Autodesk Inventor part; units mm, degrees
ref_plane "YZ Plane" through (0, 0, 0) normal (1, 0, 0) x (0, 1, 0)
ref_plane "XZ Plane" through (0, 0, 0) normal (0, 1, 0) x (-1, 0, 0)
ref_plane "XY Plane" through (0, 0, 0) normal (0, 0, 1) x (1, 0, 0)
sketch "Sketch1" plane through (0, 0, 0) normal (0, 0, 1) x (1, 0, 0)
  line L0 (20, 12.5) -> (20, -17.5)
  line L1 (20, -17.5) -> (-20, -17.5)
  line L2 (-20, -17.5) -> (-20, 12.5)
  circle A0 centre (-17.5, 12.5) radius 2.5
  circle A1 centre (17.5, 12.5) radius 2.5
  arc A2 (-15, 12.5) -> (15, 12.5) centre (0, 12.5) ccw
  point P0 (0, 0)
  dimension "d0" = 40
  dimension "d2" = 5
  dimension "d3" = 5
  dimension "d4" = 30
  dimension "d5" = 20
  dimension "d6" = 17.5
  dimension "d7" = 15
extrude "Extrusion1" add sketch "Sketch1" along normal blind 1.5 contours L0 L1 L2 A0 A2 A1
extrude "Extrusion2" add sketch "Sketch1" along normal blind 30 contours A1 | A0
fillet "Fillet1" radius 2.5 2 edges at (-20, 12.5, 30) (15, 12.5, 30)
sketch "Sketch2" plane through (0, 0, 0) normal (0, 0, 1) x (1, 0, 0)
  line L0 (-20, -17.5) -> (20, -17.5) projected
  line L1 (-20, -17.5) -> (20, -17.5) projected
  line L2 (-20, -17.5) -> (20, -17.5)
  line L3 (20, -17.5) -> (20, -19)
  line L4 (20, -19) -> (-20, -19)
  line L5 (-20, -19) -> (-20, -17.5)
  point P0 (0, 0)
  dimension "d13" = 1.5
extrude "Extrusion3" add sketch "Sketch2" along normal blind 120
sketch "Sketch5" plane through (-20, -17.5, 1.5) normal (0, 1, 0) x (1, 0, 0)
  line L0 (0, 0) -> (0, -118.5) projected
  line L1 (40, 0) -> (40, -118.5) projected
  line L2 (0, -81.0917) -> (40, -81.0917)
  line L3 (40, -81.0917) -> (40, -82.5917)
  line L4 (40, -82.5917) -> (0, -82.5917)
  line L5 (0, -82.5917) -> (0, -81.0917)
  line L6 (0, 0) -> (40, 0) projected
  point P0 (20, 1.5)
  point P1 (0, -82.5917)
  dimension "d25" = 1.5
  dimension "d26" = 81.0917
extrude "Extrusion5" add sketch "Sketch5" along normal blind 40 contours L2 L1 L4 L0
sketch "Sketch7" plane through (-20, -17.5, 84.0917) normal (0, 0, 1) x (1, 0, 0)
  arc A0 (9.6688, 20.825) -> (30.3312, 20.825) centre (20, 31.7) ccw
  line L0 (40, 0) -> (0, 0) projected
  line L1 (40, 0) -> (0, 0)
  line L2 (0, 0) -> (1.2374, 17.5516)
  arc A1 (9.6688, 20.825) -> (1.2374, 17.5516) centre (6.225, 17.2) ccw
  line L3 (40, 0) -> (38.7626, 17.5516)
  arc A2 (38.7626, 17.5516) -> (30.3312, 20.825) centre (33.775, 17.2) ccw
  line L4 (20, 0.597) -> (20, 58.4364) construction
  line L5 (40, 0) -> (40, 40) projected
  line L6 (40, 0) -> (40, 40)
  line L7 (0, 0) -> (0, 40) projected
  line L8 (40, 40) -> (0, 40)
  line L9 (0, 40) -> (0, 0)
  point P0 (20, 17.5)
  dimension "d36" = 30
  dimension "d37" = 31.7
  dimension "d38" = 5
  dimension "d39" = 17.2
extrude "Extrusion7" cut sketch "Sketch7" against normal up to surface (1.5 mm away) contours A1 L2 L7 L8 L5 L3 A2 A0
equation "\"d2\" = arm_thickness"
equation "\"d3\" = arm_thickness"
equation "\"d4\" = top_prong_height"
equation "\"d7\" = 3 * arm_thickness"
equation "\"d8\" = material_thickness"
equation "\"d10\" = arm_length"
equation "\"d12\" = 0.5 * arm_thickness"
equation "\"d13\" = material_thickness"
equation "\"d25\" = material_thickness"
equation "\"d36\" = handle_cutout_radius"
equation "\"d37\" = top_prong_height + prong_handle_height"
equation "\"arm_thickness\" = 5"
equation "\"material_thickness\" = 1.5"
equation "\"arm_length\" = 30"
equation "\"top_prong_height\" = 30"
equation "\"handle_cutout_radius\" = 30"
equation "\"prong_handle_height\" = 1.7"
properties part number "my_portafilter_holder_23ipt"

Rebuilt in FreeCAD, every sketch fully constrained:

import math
import FreeCAD as App
import Part
import Sketcher
from FreeCAD import Vector
Q = App.Units.Quantity


def edges_at(feature, points):
    """Names of the edges that pass closest to the given points."""
    edges = feature.Shape.Edges
    near = lambda p: min(range(len(edges)), key=lambda i: edges[i].distToShape(Part.Vertex(*p))[0])
    return sorted({f"Edge{near(p) + 1}" for p in points})


def add_polygon(sketch, points):
    """Adds a closed chain of lines whose ends are joined by coincident constraints."""
    first, n = sketch.GeometryCount, len(points)
    for a, b in zip(points, points[1:] + points[:1]):
        sketch.addGeometry(Part.LineSegment(App.Vector(*a, 0), App.Vector(*b, 0)), False)
    for i in range(n):
        sketch.addConstraint(Sketcher.Constraint("Coincident", first + i, 2, first + (i + 1) % n, 1))

doc = App.newDocument("Part")
body = doc.addObject("PartDesign::Body", "Body")

# Sketch on XY plane
sketch1 = doc.addObject("Sketcher::SketchObject", "Sketch")
body.addObject(sketch1)
sketch1.AttachmentSupport = (doc.XY_Plane, [""])
sketch1.MapMode = "FlatFace"
sketch1.addGeometry(Part.LineSegment(Vector(20, -17.5, 0), Vector(20, 12.5, 0)), False)
sketch1.addGeometry(Part.ArcOfCircle(Part.Circle(Vector(17.5, 12.5, 0), Vector(0, 0, 1), 2.5), math.radians(180), math.radians(360)), False)
sketch1.addGeometry(Part.ArcOfCircle(Part.Circle(Vector(0, 12.5, 0), Vector(0, 0, 1), 15), math.radians(180), math.radians(360)), False)
sketch1.addGeometry(Part.ArcOfCircle(Part.Circle(Vector(-17.5, 12.5, 0), Vector(0, 0, 1), 2.5), math.radians(180), math.radians(360)), False)
sketch1.addGeometry(Part.LineSegment(Vector(-20, 12.5, 0), Vector(-20, -17.5, 0)), False)
sketch1.addGeometry(Part.LineSegment(Vector(-20, -17.5, 0), Vector(20, -17.5, 0)), False)
sketch1.addConstraint(Sketcher.Constraint("Tangent", 0, 2, 1, 2))
sketch1.addConstraint(Sketcher.Constraint("Tangent", 1, 1, 2, 2))
sketch1.addConstraint(Sketcher.Constraint("Tangent", 2, 1, 3, 2))
sketch1.addConstraint(Sketcher.Constraint("Tangent", 3, 1, 4, 1))
sketch1.addConstraint(Sketcher.Constraint("Coincident", 4, 2, 5, 1))
sketch1.addConstraint(Sketcher.Constraint("Coincident", 5, 2, 0, 1))
sketch1.addConstraint(Sketcher.Constraint("Vertical", 0))
sketch1.addConstraint(Sketcher.Constraint("Vertical", 4))
sketch1.addConstraint(Sketcher.Constraint("Horizontal", 5))
sketch1.addConstraint(Sketcher.Constraint("Equal", 1, 3))
sketch1.addConstraint(Sketcher.Constraint("Symmetric", 1, 3, 3, 3, -2))
sketch1.addConstraint(Sketcher.Constraint("Horizontal", 1, 3, 2, 3))
sketch1.addConstraint(Sketcher.Constraint("Radius", 2, Q("15 mm")))
sketch1.addConstraint(Sketcher.Constraint("Radius", 1, Q("2.5 mm")))
sketch1.addConstraint(Sketcher.Constraint("DistanceY", 0, 1, 0, 2, Q("30 mm")))
sketch1.addConstraint(Sketcher.Constraint("DistanceY", 4, 2, -1, 1, Q("17.5 mm")))
pad1 = doc.addObject("PartDesign::Pad", "Pad")
body.addObject(pad1)
pad1.Profile = sketch1
pad1.Length = 1.5

# Sketch on XY plane
sketch2 = doc.addObject("Sketcher::SketchObject", "Sketch001")
body.addObject(sketch2)
sketch2.AttachmentSupport = (doc.XY_Plane, [""])
sketch2.MapMode = "FlatFace"
sketch2.addGeometry(Part.Circle(Vector(17.5, 12.5, 0), Vector(0, 0, 1), 2.5), False)
sketch2.addGeometry(Part.Circle(Vector(-17.5, 12.5, 0), Vector(0, 0, 1), 2.5), False)
sketch2.addConstraint(Sketcher.Constraint("Equal", 0, 1))
sketch2.addConstraint(Sketcher.Constraint("Symmetric", 0, 3, 1, 3, -2))
sketch2.addConstraint(Sketcher.Constraint("Diameter", 0, Q("5 mm")))
sketch2.addConstraint(Sketcher.Constraint("DistanceX", -1, 1, 0, 3, Q("17.5 mm")))
sketch2.addConstraint(Sketcher.Constraint("DistanceY", -1, 1, 0, 3, Q("12.5 mm")))
pad2 = doc.addObject("PartDesign::Pad", "Pad001")
body.addObject(pad2)
pad2.Profile = sketch2
pad2.Length = 30
doc.recompute()

fillet = doc.addObject("PartDesign::Fillet", "Fillet")
body.addObject(fillet)
fillet.Base = (pad2, edges_at(pad2, [(-20, 12.5, 30), (15, 12.5, 30)]))
fillet.Radius = 2.5

# Sketch on XY plane
sketch3 = doc.addObject("Sketcher::SketchObject", "Sketch002")
body.addObject(sketch3)
sketch3.AttachmentSupport = (doc.XY_Plane, [""])
sketch3.MapMode = "FlatFace"
add_polygon(sketch3, [(20, -17.5), (-20, -17.5), (-20, -19), (20, -19)])  # lines 0-3
sketch3.addConstraint(Sketcher.Constraint("Horizontal", 0))
sketch3.addConstraint(Sketcher.Constraint("Vertical", 1))
sketch3.addConstraint(Sketcher.Constraint("Horizontal", 2))
sketch3.addConstraint(Sketcher.Constraint("Vertical", 3))
sketch3.addConstraint(Sketcher.Constraint("DistanceY", 1, 2, 1, 1, Q("1.5 mm")))
sketch3.addConstraint(Sketcher.Constraint("DistanceX", 0, 2, 0, 1, Q("40 mm")))
sketch3.addConstraint(Sketcher.Constraint("DistanceX", 0, 2, -1, 1, Q("20 mm")))
sketch3.addConstraint(Sketcher.Constraint("DistanceY", 1, 2, -1, 1, Q("19 mm")))
pad3 = doc.addObject("PartDesign::Pad", "Pad002")
body.addObject(pad3)
pad3.Profile = sketch3
pad3.Length = 120

# Sketch on XZ plane
sketch4 = doc.addObject("Sketcher::SketchObject", "Sketch003")
body.addObject(sketch4)
sketch4.AttachmentSupport = (doc.XZ_Plane, [""])
sketch4.MapMode = "FlatFace"
sketch4.AttachmentOffset = App.Placement(Vector(0, 0, 17.5), App.Rotation())
add_polygon(sketch4, [(20, 82.6), (-20, 82.6), (-20, 84.1), (20, 84.1)])  # lines 0-3
sketch4.addConstraint(Sketcher.Constraint("Horizontal", 0))
sketch4.addConstraint(Sketcher.Constraint("Vertical", 1))
sketch4.addConstraint(Sketcher.Constraint("Horizontal", 2))
sketch4.addConstraint(Sketcher.Constraint("Vertical", 3))
sketch4.addConstraint(Sketcher.Constraint("DistanceY", 1, 1, 1, 2, Q("1.5 mm")))
sketch4.addConstraint(Sketcher.Constraint("DistanceX", 0, 2, 0, 1, Q("40 mm")))
sketch4.addConstraint(Sketcher.Constraint("DistanceX", 0, 2, -1, 1, Q("20 mm")))
sketch4.addConstraint(Sketcher.Constraint("DistanceY", -1, 1, 0, 2, Q("82.5917 mm")))
pad4 = doc.addObject("PartDesign::Pad", "Pad003")
body.addObject(pad4)
pad4.Profile = sketch4
pad4.Length = 40
pad4.Reversed = True

# Sketch on XY plane
sketch5 = doc.addObject("Sketcher::SketchObject", "Sketch004")
body.addObject(sketch5)
sketch5.AttachmentSupport = (doc.XY_Plane, [""])
sketch5.MapMode = "FlatFace"
sketch5.AttachmentOffset = App.Placement(Vector(0, 0, 84.0917), App.Rotation())
sketch5.addGeometry(Part.ArcOfCircle(Part.Circle(Vector(-13.8, -0.3, 0), Vector(0, 0, 1), 5), math.radians(46), math.radians(176)), False)
sketch5.addGeometry(Part.ArcOfCircle(Part.Circle(Vector(0, 14.2, 0), Vector(0, 0, 1), 15), math.radians(-134), math.radians(-46)), False)
sketch5.addGeometry(Part.ArcOfCircle(Part.Circle(Vector(13.8, -0.3, 0), Vector(0, 0, 1), 5), math.radians(4), math.radians(134)), False)
sketch5.addGeometry(Part.LineSegment(Vector(18.8, 0.1, 0), Vector(20, -17.5, 0)), False)
sketch5.addGeometry(Part.LineSegment(Vector(20, -17.5, 0), Vector(20, 22.5, 0)), False)
sketch5.addGeometry(Part.LineSegment(Vector(20, 22.5, 0), Vector(-20, 22.5, 0)), False)
sketch5.addGeometry(Part.LineSegment(Vector(-20, 22.5, 0), Vector(-20, -17.5, 0)), False)
sketch5.addGeometry(Part.LineSegment(Vector(-20, -17.5, 0), Vector(-18.8, 0.1, 0)), False)
sketch5.addConstraint(Sketcher.Constraint("Tangent", 0, 1, 1, 1))
sketch5.addConstraint(Sketcher.Constraint("Tangent", 1, 2, 2, 2))
sketch5.addConstraint(Sketcher.Constraint("Tangent", 2, 1, 3, 1))
sketch5.addConstraint(Sketcher.Constraint("Coincident", 3, 2, 4, 1))
sketch5.addConstraint(Sketcher.Constraint("Coincident", 4, 2, 5, 1))
sketch5.addConstraint(Sketcher.Constraint("Coincident", 5, 2, 6, 1))
sketch5.addConstraint(Sketcher.Constraint("Coincident", 6, 2, 7, 1))
sketch5.addConstraint(Sketcher.Constraint("Tangent", 7, 2, 0, 2))
sketch5.addConstraint(Sketcher.Constraint("Vertical", 4))
sketch5.addConstraint(Sketcher.Constraint("Horizontal", 5))
sketch5.addConstraint(Sketcher.Constraint("Vertical", 6))
sketch5.addConstraint(Sketcher.Constraint("Equal", 0, 2))
sketch5.addConstraint(Sketcher.Constraint("Symmetric", 0, 3, 2, 3, -2))
sketch5.addConstraint(Sketcher.Constraint("Symmetric", 3, 2, 6, 2, -2))
sketch5.addConstraint(Sketcher.Constraint("Equal", 5, 4))
sketch5.addConstraint(Sketcher.Constraint("Radius", 0, Q("5 mm")))
sketch5.addConstraint(Sketcher.Constraint("Radius", 1, Q("15 mm")))
sketch5.addConstraint(Sketcher.Constraint("DistanceY", 3, 2, 2, 3, Q("17.2 mm")))
sketch5.addConstraint(Sketcher.Constraint("DistanceY", 3, 2, 1, 3, Q("31.7 mm")))
sketch5.addConstraint(Sketcher.Constraint("DistanceX", 5, 2, 5, 1, Q("40 mm")))
sketch5.addConstraint(Sketcher.Constraint("DistanceY", 0, 3, -1, 1, Q("0.3 mm")))
pocket1 = doc.addObject("PartDesign::Pocket", "Pocket")
body.addObject(pocket1)
pocket1.Profile = sketch5
pocket1.Length = 1.5

doc.recompute()
